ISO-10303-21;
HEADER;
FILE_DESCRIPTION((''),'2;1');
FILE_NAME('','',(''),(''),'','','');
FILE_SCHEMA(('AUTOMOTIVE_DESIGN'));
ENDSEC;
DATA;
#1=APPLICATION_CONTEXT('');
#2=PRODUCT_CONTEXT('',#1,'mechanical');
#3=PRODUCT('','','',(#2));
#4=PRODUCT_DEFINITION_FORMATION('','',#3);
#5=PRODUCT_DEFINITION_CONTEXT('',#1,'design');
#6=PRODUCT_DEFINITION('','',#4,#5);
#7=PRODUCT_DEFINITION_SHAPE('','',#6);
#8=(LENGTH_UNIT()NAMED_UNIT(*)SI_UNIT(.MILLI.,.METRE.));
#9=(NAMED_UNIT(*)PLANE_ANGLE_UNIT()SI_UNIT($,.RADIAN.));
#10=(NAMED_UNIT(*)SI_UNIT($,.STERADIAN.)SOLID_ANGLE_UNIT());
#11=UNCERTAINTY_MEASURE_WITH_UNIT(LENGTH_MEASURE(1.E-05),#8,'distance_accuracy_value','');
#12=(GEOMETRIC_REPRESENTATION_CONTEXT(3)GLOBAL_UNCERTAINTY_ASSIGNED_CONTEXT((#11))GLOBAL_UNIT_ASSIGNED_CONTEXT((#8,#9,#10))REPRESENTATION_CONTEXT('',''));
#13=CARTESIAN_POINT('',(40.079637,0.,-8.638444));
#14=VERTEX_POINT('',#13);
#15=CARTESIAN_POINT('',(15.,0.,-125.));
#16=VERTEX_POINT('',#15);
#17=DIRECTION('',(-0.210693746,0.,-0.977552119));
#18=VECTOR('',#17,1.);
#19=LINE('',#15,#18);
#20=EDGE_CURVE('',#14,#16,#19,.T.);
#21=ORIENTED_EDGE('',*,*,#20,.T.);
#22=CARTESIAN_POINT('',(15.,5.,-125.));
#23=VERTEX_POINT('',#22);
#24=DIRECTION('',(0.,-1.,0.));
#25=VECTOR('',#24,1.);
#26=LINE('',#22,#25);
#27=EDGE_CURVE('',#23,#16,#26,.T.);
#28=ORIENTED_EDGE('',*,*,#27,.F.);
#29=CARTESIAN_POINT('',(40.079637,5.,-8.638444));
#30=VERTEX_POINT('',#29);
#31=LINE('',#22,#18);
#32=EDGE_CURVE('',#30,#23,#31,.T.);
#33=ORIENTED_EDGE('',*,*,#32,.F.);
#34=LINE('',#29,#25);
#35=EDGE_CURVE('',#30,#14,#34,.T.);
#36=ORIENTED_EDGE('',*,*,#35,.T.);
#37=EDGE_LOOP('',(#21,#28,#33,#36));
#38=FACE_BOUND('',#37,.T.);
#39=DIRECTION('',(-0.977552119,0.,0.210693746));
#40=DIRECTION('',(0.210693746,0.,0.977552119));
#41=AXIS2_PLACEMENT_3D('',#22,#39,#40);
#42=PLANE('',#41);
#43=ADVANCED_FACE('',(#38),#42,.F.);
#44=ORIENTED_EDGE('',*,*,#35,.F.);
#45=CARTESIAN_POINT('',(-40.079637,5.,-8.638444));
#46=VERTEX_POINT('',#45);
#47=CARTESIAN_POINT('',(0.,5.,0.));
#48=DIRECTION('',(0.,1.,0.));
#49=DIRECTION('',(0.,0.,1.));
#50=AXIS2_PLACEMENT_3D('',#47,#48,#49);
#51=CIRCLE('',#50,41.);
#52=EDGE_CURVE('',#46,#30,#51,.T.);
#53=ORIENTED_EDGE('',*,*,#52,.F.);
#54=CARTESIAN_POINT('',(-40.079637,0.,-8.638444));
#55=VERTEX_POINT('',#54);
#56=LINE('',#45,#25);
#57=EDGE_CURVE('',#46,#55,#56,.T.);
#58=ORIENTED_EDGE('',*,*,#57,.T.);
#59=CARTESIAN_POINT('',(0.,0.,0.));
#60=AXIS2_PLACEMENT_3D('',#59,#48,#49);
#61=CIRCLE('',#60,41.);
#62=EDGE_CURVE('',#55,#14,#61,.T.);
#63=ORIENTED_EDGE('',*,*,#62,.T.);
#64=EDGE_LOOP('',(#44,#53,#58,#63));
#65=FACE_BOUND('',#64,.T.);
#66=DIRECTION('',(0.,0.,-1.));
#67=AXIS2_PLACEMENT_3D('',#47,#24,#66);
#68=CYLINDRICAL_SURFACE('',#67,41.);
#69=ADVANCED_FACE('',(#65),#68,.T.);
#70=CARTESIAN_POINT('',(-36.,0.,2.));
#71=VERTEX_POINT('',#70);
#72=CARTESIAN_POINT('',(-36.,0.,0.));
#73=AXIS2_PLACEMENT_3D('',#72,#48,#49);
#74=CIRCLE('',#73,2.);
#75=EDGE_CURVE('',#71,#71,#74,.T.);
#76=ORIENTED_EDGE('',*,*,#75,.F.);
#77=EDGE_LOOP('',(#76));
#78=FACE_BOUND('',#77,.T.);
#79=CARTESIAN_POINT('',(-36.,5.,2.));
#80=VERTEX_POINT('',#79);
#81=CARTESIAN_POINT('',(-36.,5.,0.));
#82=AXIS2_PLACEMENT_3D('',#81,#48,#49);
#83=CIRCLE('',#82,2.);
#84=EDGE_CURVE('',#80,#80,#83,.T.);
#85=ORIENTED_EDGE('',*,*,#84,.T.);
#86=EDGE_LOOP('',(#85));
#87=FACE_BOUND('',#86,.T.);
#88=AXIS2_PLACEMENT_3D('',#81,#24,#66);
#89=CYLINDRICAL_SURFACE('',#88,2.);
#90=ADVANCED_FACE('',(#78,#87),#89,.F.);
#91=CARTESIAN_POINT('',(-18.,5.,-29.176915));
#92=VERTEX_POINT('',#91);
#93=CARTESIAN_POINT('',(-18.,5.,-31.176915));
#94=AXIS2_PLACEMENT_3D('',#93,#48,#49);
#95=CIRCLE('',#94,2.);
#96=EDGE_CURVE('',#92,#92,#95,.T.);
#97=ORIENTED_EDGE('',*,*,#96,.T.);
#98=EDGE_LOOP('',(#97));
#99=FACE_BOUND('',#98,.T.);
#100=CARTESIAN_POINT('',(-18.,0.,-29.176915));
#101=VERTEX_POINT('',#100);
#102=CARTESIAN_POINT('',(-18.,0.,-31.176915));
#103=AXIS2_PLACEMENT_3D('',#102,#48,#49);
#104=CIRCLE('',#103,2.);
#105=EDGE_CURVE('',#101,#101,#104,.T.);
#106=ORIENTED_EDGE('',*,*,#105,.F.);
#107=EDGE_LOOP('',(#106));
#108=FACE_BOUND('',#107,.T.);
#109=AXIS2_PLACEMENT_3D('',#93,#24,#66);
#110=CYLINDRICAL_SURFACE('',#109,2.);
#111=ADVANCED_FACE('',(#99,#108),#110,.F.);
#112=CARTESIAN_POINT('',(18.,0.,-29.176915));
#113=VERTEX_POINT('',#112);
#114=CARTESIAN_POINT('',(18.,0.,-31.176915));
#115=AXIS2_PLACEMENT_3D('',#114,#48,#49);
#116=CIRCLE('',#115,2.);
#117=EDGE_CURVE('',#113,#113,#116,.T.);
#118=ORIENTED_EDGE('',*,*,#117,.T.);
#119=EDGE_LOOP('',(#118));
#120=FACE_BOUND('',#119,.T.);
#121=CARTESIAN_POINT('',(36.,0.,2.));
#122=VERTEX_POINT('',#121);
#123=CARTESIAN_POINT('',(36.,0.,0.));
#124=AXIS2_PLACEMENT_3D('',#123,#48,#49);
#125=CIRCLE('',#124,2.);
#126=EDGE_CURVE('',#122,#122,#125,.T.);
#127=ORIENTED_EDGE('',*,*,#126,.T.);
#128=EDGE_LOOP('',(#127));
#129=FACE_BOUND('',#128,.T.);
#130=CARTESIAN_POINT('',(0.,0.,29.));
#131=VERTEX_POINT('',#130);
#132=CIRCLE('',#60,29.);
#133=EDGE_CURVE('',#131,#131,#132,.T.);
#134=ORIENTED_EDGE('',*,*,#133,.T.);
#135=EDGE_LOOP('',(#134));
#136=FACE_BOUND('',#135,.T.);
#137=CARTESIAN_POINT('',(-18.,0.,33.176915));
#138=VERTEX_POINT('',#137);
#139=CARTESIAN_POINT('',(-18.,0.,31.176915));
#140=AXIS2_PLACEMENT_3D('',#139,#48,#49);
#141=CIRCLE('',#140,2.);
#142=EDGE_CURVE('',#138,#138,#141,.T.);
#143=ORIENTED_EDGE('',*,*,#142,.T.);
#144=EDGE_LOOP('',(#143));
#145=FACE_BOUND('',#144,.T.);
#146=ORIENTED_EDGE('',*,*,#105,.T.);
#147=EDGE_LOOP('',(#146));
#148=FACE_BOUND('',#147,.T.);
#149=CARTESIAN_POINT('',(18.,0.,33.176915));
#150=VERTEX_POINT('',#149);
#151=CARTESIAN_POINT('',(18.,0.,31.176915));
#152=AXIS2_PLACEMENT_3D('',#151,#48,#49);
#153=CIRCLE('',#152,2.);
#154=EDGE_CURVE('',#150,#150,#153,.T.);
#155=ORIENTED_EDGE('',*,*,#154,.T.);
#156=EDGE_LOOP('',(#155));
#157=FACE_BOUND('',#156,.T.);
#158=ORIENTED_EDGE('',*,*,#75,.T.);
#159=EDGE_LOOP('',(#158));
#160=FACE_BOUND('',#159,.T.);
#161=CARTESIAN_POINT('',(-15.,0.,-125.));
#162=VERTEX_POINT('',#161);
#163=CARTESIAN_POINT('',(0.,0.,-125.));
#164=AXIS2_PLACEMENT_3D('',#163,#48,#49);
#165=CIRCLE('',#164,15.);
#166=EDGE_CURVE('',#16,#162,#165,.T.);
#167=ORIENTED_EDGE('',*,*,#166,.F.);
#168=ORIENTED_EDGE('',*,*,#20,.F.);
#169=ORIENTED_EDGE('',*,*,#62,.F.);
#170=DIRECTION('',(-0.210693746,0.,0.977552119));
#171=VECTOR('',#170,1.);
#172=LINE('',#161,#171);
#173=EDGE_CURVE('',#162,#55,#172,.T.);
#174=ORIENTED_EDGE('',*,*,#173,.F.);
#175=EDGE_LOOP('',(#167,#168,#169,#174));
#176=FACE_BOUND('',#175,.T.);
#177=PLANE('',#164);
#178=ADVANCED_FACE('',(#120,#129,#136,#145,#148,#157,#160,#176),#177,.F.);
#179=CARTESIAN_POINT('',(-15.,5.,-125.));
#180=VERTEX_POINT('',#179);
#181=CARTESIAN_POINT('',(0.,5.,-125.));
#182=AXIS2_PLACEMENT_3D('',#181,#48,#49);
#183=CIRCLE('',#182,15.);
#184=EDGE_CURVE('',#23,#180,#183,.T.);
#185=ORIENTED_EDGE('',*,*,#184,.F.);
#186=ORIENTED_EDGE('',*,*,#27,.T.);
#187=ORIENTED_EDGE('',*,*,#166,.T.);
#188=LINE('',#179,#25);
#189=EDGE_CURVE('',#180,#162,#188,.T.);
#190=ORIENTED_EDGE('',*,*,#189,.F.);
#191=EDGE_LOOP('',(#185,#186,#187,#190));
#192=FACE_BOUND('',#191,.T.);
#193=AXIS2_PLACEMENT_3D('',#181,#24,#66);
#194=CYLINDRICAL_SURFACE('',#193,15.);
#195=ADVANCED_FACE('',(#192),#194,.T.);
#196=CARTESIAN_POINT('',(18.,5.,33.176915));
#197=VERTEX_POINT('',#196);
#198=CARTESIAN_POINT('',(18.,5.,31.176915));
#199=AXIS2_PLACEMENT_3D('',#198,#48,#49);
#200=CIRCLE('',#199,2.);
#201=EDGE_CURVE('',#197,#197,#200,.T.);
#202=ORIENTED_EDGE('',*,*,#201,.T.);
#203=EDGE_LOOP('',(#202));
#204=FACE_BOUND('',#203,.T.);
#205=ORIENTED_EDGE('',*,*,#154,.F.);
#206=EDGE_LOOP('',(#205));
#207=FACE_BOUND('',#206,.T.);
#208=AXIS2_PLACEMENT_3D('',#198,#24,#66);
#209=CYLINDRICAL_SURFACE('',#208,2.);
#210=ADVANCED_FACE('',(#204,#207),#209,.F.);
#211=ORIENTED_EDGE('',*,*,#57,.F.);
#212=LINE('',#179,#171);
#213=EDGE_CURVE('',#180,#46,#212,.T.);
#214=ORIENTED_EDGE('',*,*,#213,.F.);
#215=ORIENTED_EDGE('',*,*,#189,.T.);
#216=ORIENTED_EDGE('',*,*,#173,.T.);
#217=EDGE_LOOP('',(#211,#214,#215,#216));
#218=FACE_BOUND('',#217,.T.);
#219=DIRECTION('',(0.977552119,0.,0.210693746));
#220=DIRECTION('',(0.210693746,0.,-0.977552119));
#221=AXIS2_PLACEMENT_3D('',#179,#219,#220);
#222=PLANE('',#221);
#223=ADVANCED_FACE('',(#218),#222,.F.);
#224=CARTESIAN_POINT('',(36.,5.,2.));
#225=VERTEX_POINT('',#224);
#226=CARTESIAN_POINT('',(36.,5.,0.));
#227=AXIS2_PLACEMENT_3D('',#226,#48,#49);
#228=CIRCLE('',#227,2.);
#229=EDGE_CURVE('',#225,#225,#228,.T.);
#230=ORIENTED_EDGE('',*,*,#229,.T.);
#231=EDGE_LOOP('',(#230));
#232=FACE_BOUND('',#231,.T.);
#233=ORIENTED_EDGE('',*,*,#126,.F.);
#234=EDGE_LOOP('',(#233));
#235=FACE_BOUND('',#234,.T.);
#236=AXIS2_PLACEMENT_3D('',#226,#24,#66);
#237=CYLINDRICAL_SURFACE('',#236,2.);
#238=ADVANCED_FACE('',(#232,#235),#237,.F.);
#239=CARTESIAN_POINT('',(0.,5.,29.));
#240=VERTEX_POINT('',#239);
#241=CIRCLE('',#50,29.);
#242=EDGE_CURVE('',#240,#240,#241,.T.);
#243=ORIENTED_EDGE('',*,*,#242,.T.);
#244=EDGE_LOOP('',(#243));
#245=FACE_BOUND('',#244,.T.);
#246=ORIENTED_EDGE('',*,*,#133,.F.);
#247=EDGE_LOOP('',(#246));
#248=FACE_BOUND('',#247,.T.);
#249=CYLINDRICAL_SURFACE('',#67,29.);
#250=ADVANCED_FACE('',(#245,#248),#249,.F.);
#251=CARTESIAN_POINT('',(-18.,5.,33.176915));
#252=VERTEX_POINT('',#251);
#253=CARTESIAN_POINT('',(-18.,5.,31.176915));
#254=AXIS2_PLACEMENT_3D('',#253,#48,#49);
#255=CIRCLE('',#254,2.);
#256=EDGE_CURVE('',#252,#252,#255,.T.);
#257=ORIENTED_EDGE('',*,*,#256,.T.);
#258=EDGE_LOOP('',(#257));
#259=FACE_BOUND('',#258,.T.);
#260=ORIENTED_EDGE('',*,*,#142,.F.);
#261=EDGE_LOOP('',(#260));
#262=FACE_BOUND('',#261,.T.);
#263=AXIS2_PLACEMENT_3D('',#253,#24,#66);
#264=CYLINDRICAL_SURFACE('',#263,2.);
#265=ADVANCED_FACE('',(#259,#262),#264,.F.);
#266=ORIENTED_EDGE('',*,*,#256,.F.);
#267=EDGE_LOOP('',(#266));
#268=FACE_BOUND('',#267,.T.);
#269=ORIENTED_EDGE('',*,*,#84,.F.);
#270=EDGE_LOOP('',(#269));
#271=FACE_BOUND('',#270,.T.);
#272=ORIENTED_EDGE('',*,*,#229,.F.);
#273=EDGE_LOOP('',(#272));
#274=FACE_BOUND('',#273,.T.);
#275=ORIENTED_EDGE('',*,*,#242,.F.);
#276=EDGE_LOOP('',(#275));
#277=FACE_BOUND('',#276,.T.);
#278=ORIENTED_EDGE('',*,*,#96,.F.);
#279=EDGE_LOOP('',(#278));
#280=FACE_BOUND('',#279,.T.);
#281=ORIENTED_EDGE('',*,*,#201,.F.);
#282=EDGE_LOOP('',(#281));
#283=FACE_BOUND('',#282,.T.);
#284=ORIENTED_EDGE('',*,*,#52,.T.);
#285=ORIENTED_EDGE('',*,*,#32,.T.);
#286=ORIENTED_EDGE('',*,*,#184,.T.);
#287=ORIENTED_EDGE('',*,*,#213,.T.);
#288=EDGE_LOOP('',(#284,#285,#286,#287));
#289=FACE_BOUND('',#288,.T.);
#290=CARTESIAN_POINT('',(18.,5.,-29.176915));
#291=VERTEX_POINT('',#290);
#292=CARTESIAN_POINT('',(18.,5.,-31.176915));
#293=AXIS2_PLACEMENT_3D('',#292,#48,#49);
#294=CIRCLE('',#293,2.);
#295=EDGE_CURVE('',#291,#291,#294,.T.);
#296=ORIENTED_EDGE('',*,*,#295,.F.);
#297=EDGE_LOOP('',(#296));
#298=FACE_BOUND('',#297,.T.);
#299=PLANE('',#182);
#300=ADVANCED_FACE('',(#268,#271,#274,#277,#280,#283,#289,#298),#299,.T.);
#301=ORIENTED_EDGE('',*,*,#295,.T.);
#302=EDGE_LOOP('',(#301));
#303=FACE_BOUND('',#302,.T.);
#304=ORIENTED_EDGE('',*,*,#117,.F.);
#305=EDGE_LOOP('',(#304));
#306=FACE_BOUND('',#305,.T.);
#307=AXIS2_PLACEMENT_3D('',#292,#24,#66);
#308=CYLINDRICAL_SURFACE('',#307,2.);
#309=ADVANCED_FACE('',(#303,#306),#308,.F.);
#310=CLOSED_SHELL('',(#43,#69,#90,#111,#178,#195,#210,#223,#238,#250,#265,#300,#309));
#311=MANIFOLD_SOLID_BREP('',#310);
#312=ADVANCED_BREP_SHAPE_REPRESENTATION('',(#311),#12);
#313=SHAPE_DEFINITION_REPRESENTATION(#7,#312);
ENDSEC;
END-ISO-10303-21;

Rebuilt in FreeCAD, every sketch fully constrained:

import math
import FreeCAD as App
import Part
import Sketcher
from FreeCAD import Vector
Q = App.Units.Quantity

doc = App.newDocument("Part")
body = doc.addObject("PartDesign::Body", "Body")

sketch1 = body.newObject("Sketcher::SketchObject", "Sketch")
sketch1.AttachmentSupport = (doc.getObject("XZ_Plane"), [""])
sketch1.MapMode = "FlatFace"
sketch1.addGeometry([
    Part.LineSegment(Vector(-15, -125, 0), Vector(-40.079637, -8.638444, 0)),
    Part.ArcOfCircle(Part.Circle(Vector(0, 0, 0), Vector(0, 0, 1), 41), math.radians(-12.163011), math.radians(192.163011)),
    Part.LineSegment(Vector(40.079637, -8.638444, 0), Vector(15, -125, 0)),
    Part.ArcOfCircle(Part.Circle(Vector(0, -125, 0), Vector(0, 0, 1), 15), math.radians(180), math.radians(360)),
    Part.Circle(Vector(-18, 31.176915, 0), Vector(0, 0, 1), 2),
    Part.Circle(Vector(18, 31.176915, 0), Vector(0, 0, 1), 2),
    Part.Circle(Vector(-36, 0, 0), Vector(0, 0, 1), 2),
    Part.Circle(Vector(-18, -31.176915, 0), Vector(0, 0, 1), 2),
    Part.Circle(Vector(0, 0, 0), Vector(0, 0, 1), 29),
    Part.Circle(Vector(36, 0, 0), Vector(0, 0, 1), 2),
    Part.Circle(Vector(18, -31.176915, 0), Vector(0, 0, 1), 2),
], False)
sketch1.addConstraint([
    Sketcher.Constraint("Tangent", 0, 2, 1, 2),
    Sketcher.Constraint("Tangent", 1, 1, 2, 1),
    Sketcher.Constraint("Coincident", 2, 2, 3, 2),
    Sketcher.Constraint("Coincident", 3, 1, 0, 1),
    Sketcher.Constraint("Coincident", 1, 3, -1, 1),
    Sketcher.Constraint("Coincident", 8, 3, -1, 1),
    Sketcher.Constraint("Equal", 4, 5),
    Sketcher.Constraint("Equal", 5, 6),
    Sketcher.Constraint("Equal", 6, 7),
    Sketcher.Constraint("Equal", 7, 9),
    Sketcher.Constraint("Equal", 9, 10),
    Sketcher.Constraint("Symmetric", 5, 3, 7, 3, -1, 1),
    Sketcher.Constraint("Symmetric", 6, 3, 9, 3, -1, 1),
    Sketcher.Constraint("Symmetric", 4, 3, 10, 3, -1, 1),
    Sketcher.Constraint("Symmetric", 4, 3, 5, 3, -2),
    Sketcher.Constraint("Symmetric", 2, 2, 3, 1, -2),
    Sketcher.Constraint("PointOnObject", 6, 3, -1),
    Sketcher.Constraint("Horizontal", 3, 3, 2, 2),
    Sketcher.Constraint("Diameter", 4, Q("4 mm")),
    Sketcher.Constraint("Diameter", 8, Q("58 mm")),
    Sketcher.Constraint("Radius", 1, Q("41 mm")),
    Sketcher.Constraint("Radius", 3, Q("15 mm")),
    Sketcher.Constraint("DistanceY", 3, 3, -1, 1, Q("125 mm")),
    Sketcher.Constraint("DistanceX", 4, 3, -1, 1, Q("18 mm")),
    Sketcher.Constraint("DistanceX", 6, 3, -1, 1, Q("36 mm")),
    Sketcher.Constraint("DistanceY", 7, 3, 4, 3, Q("62.353829 mm")),
])
pad1 = body.newObject("PartDesign::Pad", "Pad")
pad1.Profile = sketch1
pad1.Length = 5
pad1.Reversed = True

doc.recompute()
